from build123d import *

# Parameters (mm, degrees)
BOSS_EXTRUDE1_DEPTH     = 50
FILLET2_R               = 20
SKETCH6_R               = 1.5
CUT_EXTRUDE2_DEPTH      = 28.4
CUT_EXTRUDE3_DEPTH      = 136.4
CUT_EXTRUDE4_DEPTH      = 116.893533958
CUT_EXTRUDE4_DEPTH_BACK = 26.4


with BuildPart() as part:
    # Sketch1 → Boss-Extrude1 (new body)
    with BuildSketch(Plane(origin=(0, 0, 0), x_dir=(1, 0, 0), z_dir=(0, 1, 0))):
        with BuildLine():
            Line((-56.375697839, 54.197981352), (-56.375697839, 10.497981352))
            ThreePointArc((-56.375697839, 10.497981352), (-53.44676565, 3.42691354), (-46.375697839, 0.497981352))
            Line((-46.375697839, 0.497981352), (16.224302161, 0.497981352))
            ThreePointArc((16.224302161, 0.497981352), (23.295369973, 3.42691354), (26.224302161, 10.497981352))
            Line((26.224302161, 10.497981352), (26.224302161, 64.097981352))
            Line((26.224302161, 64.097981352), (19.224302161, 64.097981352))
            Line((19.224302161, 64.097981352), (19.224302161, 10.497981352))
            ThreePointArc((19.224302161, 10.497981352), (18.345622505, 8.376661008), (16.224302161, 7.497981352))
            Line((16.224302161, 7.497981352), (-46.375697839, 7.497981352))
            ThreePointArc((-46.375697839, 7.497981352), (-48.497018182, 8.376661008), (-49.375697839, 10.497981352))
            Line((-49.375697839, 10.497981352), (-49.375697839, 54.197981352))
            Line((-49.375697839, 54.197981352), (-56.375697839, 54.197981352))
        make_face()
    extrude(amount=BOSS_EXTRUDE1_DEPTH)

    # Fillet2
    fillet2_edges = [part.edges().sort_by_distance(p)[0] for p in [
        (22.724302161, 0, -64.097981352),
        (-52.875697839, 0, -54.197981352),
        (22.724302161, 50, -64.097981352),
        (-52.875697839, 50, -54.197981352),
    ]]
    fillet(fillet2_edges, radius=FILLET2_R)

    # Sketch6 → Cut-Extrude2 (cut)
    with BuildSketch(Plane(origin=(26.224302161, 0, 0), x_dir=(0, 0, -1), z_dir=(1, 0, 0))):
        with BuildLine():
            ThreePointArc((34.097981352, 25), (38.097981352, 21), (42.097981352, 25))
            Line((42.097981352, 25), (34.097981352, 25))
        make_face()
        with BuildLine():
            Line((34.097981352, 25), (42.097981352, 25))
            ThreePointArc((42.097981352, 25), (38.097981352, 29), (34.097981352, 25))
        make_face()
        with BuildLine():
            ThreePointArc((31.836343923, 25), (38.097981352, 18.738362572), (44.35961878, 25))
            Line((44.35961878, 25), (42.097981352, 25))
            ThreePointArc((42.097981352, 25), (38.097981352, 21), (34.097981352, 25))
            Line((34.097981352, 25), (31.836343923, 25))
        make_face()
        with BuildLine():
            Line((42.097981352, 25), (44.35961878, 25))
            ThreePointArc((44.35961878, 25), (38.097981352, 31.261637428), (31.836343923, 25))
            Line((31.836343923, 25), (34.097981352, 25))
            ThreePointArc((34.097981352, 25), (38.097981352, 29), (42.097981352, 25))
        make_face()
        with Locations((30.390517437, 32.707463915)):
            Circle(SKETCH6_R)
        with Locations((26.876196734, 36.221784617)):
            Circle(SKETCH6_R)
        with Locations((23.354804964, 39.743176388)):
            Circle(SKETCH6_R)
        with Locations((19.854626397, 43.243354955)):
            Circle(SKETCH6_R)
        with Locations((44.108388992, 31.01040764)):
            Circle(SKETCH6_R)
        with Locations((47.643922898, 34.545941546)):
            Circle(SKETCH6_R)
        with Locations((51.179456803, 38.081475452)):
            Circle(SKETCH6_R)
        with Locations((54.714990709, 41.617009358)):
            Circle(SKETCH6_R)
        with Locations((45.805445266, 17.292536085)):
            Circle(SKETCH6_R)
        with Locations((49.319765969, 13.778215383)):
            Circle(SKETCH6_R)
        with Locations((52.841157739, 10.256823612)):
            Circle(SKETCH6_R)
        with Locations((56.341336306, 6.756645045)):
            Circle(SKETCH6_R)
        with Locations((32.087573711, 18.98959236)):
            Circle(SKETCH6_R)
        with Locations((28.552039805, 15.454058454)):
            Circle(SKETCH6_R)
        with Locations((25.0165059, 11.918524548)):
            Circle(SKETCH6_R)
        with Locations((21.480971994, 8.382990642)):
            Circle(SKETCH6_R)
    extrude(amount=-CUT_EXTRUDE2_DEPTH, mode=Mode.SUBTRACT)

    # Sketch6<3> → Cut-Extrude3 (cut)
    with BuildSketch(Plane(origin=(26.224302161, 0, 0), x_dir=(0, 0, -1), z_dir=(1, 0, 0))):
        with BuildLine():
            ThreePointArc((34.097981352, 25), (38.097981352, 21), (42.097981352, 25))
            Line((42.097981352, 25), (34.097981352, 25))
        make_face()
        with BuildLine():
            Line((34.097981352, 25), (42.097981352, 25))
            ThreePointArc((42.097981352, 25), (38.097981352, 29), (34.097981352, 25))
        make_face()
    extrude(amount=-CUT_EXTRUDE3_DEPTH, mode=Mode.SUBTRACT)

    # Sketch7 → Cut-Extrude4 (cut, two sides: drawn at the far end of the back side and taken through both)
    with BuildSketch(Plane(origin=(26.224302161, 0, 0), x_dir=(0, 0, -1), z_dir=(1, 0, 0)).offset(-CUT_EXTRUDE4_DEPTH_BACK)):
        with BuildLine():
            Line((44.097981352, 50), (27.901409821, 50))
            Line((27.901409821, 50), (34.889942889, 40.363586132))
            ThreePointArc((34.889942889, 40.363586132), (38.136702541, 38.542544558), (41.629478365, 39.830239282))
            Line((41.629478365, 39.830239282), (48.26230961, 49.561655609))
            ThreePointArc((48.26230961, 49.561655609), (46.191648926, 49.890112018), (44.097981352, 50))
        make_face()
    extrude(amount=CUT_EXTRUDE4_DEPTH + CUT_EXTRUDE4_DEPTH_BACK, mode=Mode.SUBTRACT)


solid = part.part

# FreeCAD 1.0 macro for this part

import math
import FreeCAD as App
import Part
import Sketcher
from FreeCAD import Vector


def edges_at(feature, points):
    """Names of the edges that pass closest to the given points."""
    edges = feature.Shape.Edges
    near = lambda p: min(range(len(edges)), key=lambda i: edges[i].distToShape(Part.Vertex(*p))[0])
    return sorted({f"Edge{near(p) + 1}" for p in points})

doc = App.newDocument("Part")
body = doc.addObject("PartDesign::Body", "Body")

sketch1 = doc.addObject("Sketcher::SketchObject", "Sketch")
body.addObject(sketch1)
sketch1.AttachmentSupport = (doc.XZ_Plane, [""])
sketch1.MapMode = "FlatFace"
sketch1.addGeometry([
    Part.LineSegment(Vector(-56.4, -54.2, 0), Vector(-56.4, -10.5, 0)),
    Part.ArcOfCircle(Part.Circle(Vector(-46.4, -10.5, 0), Vector(0, 0, 1), 10), math.radians(90), math.radians(180)),
    Part.LineSegment(Vector(-46.4, -0.5, 0), Vector(16.2, -0.5, 0)),
    Part.ArcOfCircle(Part.Circle(Vector(16.2, -10.5, 0), Vector(0, 0, 1), 10), math.radians(0), math.radians(90)),
    Part.LineSegment(Vector(26.2, -10.5, 0), Vector(26.2, -64.1, 0)),
    Part.LineSegment(Vector(26.2, -64.1, 0), Vector(19.2, -64.1, 0)),
    Part.LineSegment(Vector(19.2, -64.1, 0), Vector(19.2, -10.5, 0)),
    Part.ArcOfCircle(Part.Circle(Vector(16.2, -10.5, 0), Vector(0, 0, 1), 3), math.radians(0), math.radians(90)),
    Part.LineSegment(Vector(16.2, -7.5, 0), Vector(-46.4, -7.5, 0)),
    Part.ArcOfCircle(Part.Circle(Vector(-46.4, -10.5, 0), Vector(0, 0, 1), 3), math.radians(90), math.radians(180)),
    Part.LineSegment(Vector(-49.4, -10.5, 0), Vector(-49.4, -54.2, 0)),
    Part.LineSegment(Vector(-49.4, -54.2, 0), Vector(-56.4, -54.2, 0)),
], False)
sketch1.addConstraint([
    Sketcher.Constraint("Tangent", 0, 2, 1, 2),
    Sketcher.Constraint("Tangent", 1, 1, 2, 1),
    Sketcher.Constraint("Tangent", 2, 2, 3, 2),
    Sketcher.Constraint("Tangent", 3, 1, 4, 1),
    Sketcher.Constraint("Coincident", 4, 2, 5, 1),
    Sketcher.Constraint("Coincident", 5, 2, 6, 1),
    Sketcher.Constraint("Tangent", 6, 2, 7, 1),
    Sketcher.Constraint("Tangent", 7, 2, 8, 1),
    Sketcher.Constraint("Tangent", 8, 2, 9, 1),
    Sketcher.Constraint("Tangent", 9, 2, 10, 1),
    Sketcher.Constraint("Coincident", 10, 2, 11, 1),
    Sketcher.Constraint("Coincident", 11, 2, 0, 1),
    Sketcher.Constraint("Vertical", 0),
    Sketcher.Constraint("Horizontal", 2),
    Sketcher.Constraint("Vertical", 4),
    Sketcher.Constraint("Horizontal", 5),
    Sketcher.Constraint("Vertical", 6),
    Sketcher.Constraint("Horizontal", 8),
    Sketcher.Constraint("Vertical", 10),
    Sketcher.Constraint("Horizontal", 11),
    Sketcher.Constraint("Coincident", 7, 3, 3, 3),
    Sketcher.Constraint("Coincident", 9, 3, 1, 3),
    Sketcher.Constraint("Equal", 1, 3),
    Sketcher.Constraint("Radius", 1, 10.0),
    Sketcher.Constraint("Radius", 7, 3.0),
    Sketcher.Constraint("DistanceX", 2, 1, 2, 2, 62.6),
    Sketcher.Constraint("DistanceY", 0, 1, 0, 2, 43.7),
    Sketcher.Constraint("DistanceY", 4, 2, 4, 1, 53.6),
    Sketcher.Constraint("DistanceY", 1, 3, -1, 1, 10.497981),
    Sketcher.Constraint("DistanceX", 1, 3, -1, 1, 46.375698),
])
pad1 = doc.addObject("PartDesign::Pad", "Pad")
body.addObject(pad1)
pad1.Profile = sketch1
pad1.Length = 50
pad1.Reversed = True
doc.recompute()

fillet = doc.addObject("PartDesign::Fillet", "Fillet")
body.addObject(fillet)
fillet.Base = (pad1, edges_at(pad1, [
    (22.724, 0, -64.098),
    (-52.876, 0, -54.198),
    (22.724, 50, -64.098),
    (-52.876, 50, -54.198),
]))
fillet.Radius = 20

sketch2 = doc.addObject("Sketcher::SketchObject", "Sketch001")
body.addObject(sketch2)
sketch2.AttachmentSupport = (doc.YZ_Plane, [""])
sketch2.MapMode = "FlatFace"
sketch2.AttachmentOffset = App.Placement(Vector(0, 0, 26.224302), App.Rotation())
sketch2.addGeometry([
    Part.ArcOfCircle(Part.Circle(Vector(25, -38.1, 0), Vector(0, 0, 1), 6.3), math.radians(90), math.radians(270)),
    Part.ArcOfCircle(Part.Circle(Vector(25, -38.1, 0), Vector(0, 0, 1), 6.3), math.radians(-90), math.radians(90)),
    Part.Circle(Vector(32.7, -30.4, 0), Vector(0, 0, 1), 1.5),
    Part.Circle(Vector(36.2, -26.9, 0), Vector(0, 0, 1), 1.5),
    Part.Circle(Vector(39.7, -23.4, 0), Vector(0, 0, 1), 1.5),
    Part.Circle(Vector(43.2, -19.9, 0), Vector(0, 0, 1), 1.5),
    Part.Circle(Vector(31, -44.1, 0), Vector(0, 0, 1), 1.5),
    Part.Circle(Vector(34.5, -47.6, 0), Vector(0, 0, 1), 1.5),
    Part.Circle(Vector(38.1, -51.2, 0), Vector(0, 0, 1), 1.5),
    Part.Circle(Vector(41.6, -54.7, 0), Vector(0, 0, 1), 1.5),
    Part.Circle(Vector(17.3, -45.8, 0), Vector(0, 0, 1), 1.5),
    Part.Circle(Vector(13.8, -49.3, 0), Vector(0, 0, 1), 1.5),
    Part.Circle(Vector(10.3, -52.8, 0), Vector(0, 0, 1), 1.5),
    Part.Circle(Vector(6.8, -56.3, 0), Vector(0, 0, 1), 1.5),
    Part.Circle(Vector(19, -32.1, 0), Vector(0, 0, 1), 1.5),
    Part.Circle(Vector(15.5, -28.6, 0), Vector(0, 0, 1), 1.5),
    Part.Circle(Vector(11.9, -25, 0), Vector(0, 0, 1), 1.5),
    Part.Circle(Vector(8.4, -21.5, 0), Vector(0, 0, 1), 1.5),
], False)
sketch2.addConstraint([
    Sketcher.Constraint("Tangent", 0, 1, 1, 2),
    Sketcher.Constraint("Coincident", 1, 1, 0, 2),
    Sketcher.Constraint("Equal", 2, 3),
    Sketcher.Constraint("Equal", 3, 4),
    Sketcher.Constraint("Equal", 4, 5),
    Sketcher.Constraint("Equal", 5, 6),
    Sketcher.Constraint("Equal", 6, 7),
    Sketcher.Constraint("Equal", 7, 8),
    Sketcher.Constraint("Equal", 8, 9),
    Sketcher.Constraint("Equal", 9, 10),
    Sketcher.Constraint("Equal", 10, 11),
    Sketcher.Constraint("Equal", 11, 12),
    Sketcher.Constraint("Equal", 12, 13),
    Sketcher.Constraint("Equal", 13, 14),
    Sketcher.Constraint("Equal", 14, 15),
    Sketcher.Constraint("Equal", 15, 16),
    Sketcher.Constraint("Equal", 16, 17),
    Sketcher.Constraint("Vertical", 1, 3, 0, 1),
    Sketcher.Constraint("Vertical", 0, 1, 1, 1),
    Sketcher.Constraint("Diameter", 2, 3.0),
    Sketcher.Constraint("DistanceX", -1, 1, 0, 3, 25.0),
    Sketcher.Constraint("Radius", 0, 6.261637),
    Sketcher.Constraint("DistanceX", 6, 3, 9, 3, 10.606602),
    Sketcher.Constraint("DistanceY", 9, 3, 6, 3, 10.606602),
    Sketcher.Constraint("DistanceX", 17, 3, 14, 3, 10.606602),
    Sketcher.Constraint("DistanceY", 14, 3, 17, 3, 10.606602),
    Sketcher.Constraint("DistanceY", 0, 3, -1, 1, 38.097981),
    Sketcher.Constraint("DistanceY", 6, 3, -1, 1, 44.108389),
    Sketcher.Constraint("DistanceX", -1, 1, 7, 3, 34.545942),
    Sketcher.Constraint("DistanceX", -1, 1, 9, 3, 41.617009),
    Sketcher.Constraint("DistanceX", -1, 1, 15, 3, 15.454058),
    Sketcher.Constraint("DistanceY", 15, 3, -1, 1, 28.55204),
    Sketcher.Constraint("DistanceX", -1, 1, 17, 3, 8.382991),
    Sketcher.Constraint("DistanceY", 17, 3, -1, 1, 21.480972),
    Sketcher.Constraint("DistanceX", 2, 3, 3, 3, 3.514321),
    Sketcher.Constraint("DistanceY", 2, 3, 3, 3, 3.514321),
    Sketcher.Constraint("DistanceX", 3, 3, 4, 3, 3.521392),
    Sketcher.Constraint("DistanceY", 3, 3, 4, 3, 3.521392),
    Sketcher.Constraint("DistanceX", 4, 3, 5, 3, 3.500179),
    Sketcher.Constraint("DistanceY", 4, 3, 5, 3, 3.500179),
    Sketcher.Constraint("DistanceY", 6, 3, 2, 3, 13.717872),
    Sketcher.Constraint("DistanceX", 6, 3, 4, 3, 8.732769),
    Sketcher.Constraint("DistanceY", 7, 3, 0, 3, 9.545942),
    Sketcher.Constraint("DistanceX", 2, 3, 8, 3, 5.374012),
    Sketcher.Constraint("DistanceY", 8, 3, 2, 3, 20.788939),
    Sketcher.Constraint("DistanceX", 10, 3, 6, 3, 13.717872),
    Sketcher.Constraint("DistanceY", 8, 3, 10, 3, 5.374012),
    Sketcher.Constraint("DistanceX", 11, 3, 10, 3, 3.514321),
    Sketcher.Constraint("DistanceY", 11, 3, 10, 3, 3.514321),
    Sketcher.Constraint("DistanceX", 12, 3, 11, 3, 3.521392),
    Sketcher.Constraint("DistanceY", 12, 3, 11, 3, 3.521392),
    Sketcher.Constraint("DistanceX", 13, 3, 12, 3, 3.500179),
    Sketcher.Constraint("DistanceY", 13, 3, 12, 3, 3.500179),
    Sketcher.Constraint("DistanceX", 16, 3, 10, 3, 5.374012),
    Sketcher.Constraint("DistanceY", 10, 3, 16, 3, 20.788939),
])
pocket1 = doc.addObject("PartDesign::Pocket", "Pocket")
body.addObject(pocket1)
pocket1.Profile = sketch2
pocket1.Length = 28.4

sketch3 = doc.addObject("Sketcher::SketchObject", "Sketch002")
body.addObject(sketch3)
sketch3.AttachmentSupport = (doc.YZ_Plane, [""])
sketch3.MapMode = "FlatFace"
sketch3.AttachmentOffset = App.Placement(Vector(0, 0, 26.224302), App.Rotation())
sketch3.addGeometry(Part.Circle(Vector(25, -38.1, 0), Vector(0, 0, 1), 4), False)
sketch3.addConstraint([
    Sketcher.Constraint("Diameter", 0, 8.0),
    Sketcher.Constraint("DistanceX", -1, 1, 0, 3, 25.0),
    Sketcher.Constraint("DistanceY", 0, 3, -1, 1, 38.097981),
])
pocket2 = doc.addObject("PartDesign::Pocket", "Pocket001")
body.addObject(pocket2)
pocket2.Profile = sketch3
pocket2.Length = 136.4

sketch4 = doc.addObject("Sketcher::SketchObject", "Sketch003")
body.addObject(sketch4)
sketch4.AttachmentSupport = (doc.YZ_Plane, [""])
sketch4.MapMode = "FlatFace"
sketch4.AttachmentOffset = App.Placement(Vector(0, 0, 26.224302), App.Rotation())
sketch4.addGeometry([
    Part.LineSegment(Vector(50, -44.1, 0), Vector(50, -27.9, 0)),
    Part.LineSegment(Vector(50, -27.9, 0), Vector(40.4, -34.9, 0)),
    Part.ArcOfCircle(Part.Circle(Vector(43, -38.5, 0), Vector(0, 0, 1), 4.4), math.radians(126), math.radians(225)),
    Part.LineSegment(Vector(39.8, -41.6, 0), Vector(49.6, -48.3, 0)),
    Part.ArcOfCircle(Part.Circle(Vector(30, -44.1, 0), Vector(0, 0, 1), 20), math.radians(-12.02), math.radians(0)),
], False)
sketch4.addConstraint([
    Sketcher.Constraint("Coincident", 0, 2, 1, 1),
    Sketcher.Constraint("Tangent", 1, 2, 2, 1),
    Sketcher.Constraint("Coincident", 2, 2, 3, 1),
    Sketcher.Constraint("Coincident", 3, 2, 4, 1),
    Sketcher.Constraint("Tangent", 4, 2, 0, 1),
    Sketcher.Constraint("Vertical", 0),
    Sketcher.Constraint("Radius", 4, 20.0),
    Sketcher.Constraint("DistanceX", -1, 1, 4, 3, 30.0),
    Sketcher.Constraint("Radius", 2, 4.443751),
    Sketcher.Constraint("DistanceY", 0, 1, 0, 2, 16.196572),
    Sketcher.Constraint("DistanceY", 3, 2, 0, 2, 20.3609),
    Sketcher.Constraint("Distance", 3, 11.77688),
    Sketcher.Constraint("DistanceY", 2, 3, -1, 1, 38.487272),
    Sketcher.Constraint("DistanceY", 4, 3, -1, 1, 44.097981),
    Sketcher.Constraint("DistanceX", -1, 1, 2, 2, 39.830239),
])
pocket3 = doc.addObject("PartDesign::Pocket", "Pocket002")
body.addObject(pocket3)
pocket3.Profile = sketch4
pocket3.Type = "TwoLengths"
pocket3.Length = 116.893534
pocket3.Length2 = 26.4
pocket3.Reversed = True

doc.recompute()
